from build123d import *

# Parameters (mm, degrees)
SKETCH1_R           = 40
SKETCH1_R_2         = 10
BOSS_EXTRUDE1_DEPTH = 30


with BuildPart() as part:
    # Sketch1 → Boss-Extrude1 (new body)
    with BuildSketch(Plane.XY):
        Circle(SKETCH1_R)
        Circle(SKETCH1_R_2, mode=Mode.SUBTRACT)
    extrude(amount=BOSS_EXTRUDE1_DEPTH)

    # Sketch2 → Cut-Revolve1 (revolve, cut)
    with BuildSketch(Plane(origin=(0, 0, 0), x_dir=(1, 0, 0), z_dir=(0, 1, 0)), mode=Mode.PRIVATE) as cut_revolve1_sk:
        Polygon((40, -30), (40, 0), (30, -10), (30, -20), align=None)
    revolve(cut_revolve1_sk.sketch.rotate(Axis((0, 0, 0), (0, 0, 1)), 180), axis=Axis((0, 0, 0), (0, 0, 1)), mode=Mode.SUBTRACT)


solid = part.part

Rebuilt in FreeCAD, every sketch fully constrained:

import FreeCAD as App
import Part
import Sketcher

V = App.Vector
Q = App.Units.Quantity


def add_polygon(sketch, points):
    """Adds a closed chain of lines whose ends are joined by coincident constraints."""
    first, n = sketch.GeometryCount, len(points)
    for a, b in zip(points, points[1:] + points[:1]):
        sketch.addGeometry(Part.LineSegment(App.Vector(*a, 0), App.Vector(*b, 0)), False)
    for i in range(n):
        sketch.addConstraint(Sketcher.Constraint("Coincident", first + i, 2, first + (i + 1) % n, 1))

doc = App.newDocument("Part")
body = doc.addObject("PartDesign::Body", "Body")

# Sketch on XY plane
sketch1 = body.newObject("Sketcher::SketchObject", "Sketch")
sketch1.AttachmentSupport = (doc.getObject("XY_Plane"), [""])
sketch1.MapMode = "FlatFace"
sketch1.addGeometry([
    Part.Circle(V(0, 0, 0), V(0, 0, 1), 40),
    Part.Circle(V(0, 0, 0), V(0, 0, 1), 10),
], False)
sketch1.addConstraint([
    Sketcher.Constraint("Coincident", 0, 3, -1, 1),
    Sketcher.Constraint("Coincident", 1, 3, -1, 1),
    Sketcher.Constraint("Diameter", 0, Q("80 mm")),
    Sketcher.Constraint("Diameter", 1, Q("20 mm")),
])
pad1 = body.newObject("PartDesign::Pad", "Pad")
pad1.Profile = sketch1
pad1.Length = 30

# Sketch on XZ plane
sketch2 = body.newObject("Sketcher::SketchObject", "Sketch001")
sketch2.AttachmentSupport = (doc.getObject("XZ_Plane"), [""])
sketch2.MapMode = "FlatFace"
add_polygon(sketch2, [(40, 30), (40, 0), (30, 10), (30, 20)])  # lines 0-3
sketch2.addConstraint([
    Sketcher.Constraint("Vertical", 0),
    Sketcher.Constraint("Vertical", 2),
    Sketcher.Constraint("PointOnObject", 0, 2, -1),
    Sketcher.Constraint("Perpendicular", 1, 3),
    Sketcher.Constraint("Equal", 1, 3),
    Sketcher.Constraint("DistanceY", 0, 2, 0, 1, Q("30 mm")),
    Sketcher.Constraint("DistanceY", 2, 1, 2, 2, Q("10 mm")),
    Sketcher.Constraint("DistanceX", -1, 1, 0, 2, Q("40 mm")),
])
groove = body.newObject("PartDesign::Groove", "Groove")
groove.Profile = sketch2
groove.ReferenceAxis = (sketch2, ["V_Axis"])
groove.Angle = 360

doc.recompute()
